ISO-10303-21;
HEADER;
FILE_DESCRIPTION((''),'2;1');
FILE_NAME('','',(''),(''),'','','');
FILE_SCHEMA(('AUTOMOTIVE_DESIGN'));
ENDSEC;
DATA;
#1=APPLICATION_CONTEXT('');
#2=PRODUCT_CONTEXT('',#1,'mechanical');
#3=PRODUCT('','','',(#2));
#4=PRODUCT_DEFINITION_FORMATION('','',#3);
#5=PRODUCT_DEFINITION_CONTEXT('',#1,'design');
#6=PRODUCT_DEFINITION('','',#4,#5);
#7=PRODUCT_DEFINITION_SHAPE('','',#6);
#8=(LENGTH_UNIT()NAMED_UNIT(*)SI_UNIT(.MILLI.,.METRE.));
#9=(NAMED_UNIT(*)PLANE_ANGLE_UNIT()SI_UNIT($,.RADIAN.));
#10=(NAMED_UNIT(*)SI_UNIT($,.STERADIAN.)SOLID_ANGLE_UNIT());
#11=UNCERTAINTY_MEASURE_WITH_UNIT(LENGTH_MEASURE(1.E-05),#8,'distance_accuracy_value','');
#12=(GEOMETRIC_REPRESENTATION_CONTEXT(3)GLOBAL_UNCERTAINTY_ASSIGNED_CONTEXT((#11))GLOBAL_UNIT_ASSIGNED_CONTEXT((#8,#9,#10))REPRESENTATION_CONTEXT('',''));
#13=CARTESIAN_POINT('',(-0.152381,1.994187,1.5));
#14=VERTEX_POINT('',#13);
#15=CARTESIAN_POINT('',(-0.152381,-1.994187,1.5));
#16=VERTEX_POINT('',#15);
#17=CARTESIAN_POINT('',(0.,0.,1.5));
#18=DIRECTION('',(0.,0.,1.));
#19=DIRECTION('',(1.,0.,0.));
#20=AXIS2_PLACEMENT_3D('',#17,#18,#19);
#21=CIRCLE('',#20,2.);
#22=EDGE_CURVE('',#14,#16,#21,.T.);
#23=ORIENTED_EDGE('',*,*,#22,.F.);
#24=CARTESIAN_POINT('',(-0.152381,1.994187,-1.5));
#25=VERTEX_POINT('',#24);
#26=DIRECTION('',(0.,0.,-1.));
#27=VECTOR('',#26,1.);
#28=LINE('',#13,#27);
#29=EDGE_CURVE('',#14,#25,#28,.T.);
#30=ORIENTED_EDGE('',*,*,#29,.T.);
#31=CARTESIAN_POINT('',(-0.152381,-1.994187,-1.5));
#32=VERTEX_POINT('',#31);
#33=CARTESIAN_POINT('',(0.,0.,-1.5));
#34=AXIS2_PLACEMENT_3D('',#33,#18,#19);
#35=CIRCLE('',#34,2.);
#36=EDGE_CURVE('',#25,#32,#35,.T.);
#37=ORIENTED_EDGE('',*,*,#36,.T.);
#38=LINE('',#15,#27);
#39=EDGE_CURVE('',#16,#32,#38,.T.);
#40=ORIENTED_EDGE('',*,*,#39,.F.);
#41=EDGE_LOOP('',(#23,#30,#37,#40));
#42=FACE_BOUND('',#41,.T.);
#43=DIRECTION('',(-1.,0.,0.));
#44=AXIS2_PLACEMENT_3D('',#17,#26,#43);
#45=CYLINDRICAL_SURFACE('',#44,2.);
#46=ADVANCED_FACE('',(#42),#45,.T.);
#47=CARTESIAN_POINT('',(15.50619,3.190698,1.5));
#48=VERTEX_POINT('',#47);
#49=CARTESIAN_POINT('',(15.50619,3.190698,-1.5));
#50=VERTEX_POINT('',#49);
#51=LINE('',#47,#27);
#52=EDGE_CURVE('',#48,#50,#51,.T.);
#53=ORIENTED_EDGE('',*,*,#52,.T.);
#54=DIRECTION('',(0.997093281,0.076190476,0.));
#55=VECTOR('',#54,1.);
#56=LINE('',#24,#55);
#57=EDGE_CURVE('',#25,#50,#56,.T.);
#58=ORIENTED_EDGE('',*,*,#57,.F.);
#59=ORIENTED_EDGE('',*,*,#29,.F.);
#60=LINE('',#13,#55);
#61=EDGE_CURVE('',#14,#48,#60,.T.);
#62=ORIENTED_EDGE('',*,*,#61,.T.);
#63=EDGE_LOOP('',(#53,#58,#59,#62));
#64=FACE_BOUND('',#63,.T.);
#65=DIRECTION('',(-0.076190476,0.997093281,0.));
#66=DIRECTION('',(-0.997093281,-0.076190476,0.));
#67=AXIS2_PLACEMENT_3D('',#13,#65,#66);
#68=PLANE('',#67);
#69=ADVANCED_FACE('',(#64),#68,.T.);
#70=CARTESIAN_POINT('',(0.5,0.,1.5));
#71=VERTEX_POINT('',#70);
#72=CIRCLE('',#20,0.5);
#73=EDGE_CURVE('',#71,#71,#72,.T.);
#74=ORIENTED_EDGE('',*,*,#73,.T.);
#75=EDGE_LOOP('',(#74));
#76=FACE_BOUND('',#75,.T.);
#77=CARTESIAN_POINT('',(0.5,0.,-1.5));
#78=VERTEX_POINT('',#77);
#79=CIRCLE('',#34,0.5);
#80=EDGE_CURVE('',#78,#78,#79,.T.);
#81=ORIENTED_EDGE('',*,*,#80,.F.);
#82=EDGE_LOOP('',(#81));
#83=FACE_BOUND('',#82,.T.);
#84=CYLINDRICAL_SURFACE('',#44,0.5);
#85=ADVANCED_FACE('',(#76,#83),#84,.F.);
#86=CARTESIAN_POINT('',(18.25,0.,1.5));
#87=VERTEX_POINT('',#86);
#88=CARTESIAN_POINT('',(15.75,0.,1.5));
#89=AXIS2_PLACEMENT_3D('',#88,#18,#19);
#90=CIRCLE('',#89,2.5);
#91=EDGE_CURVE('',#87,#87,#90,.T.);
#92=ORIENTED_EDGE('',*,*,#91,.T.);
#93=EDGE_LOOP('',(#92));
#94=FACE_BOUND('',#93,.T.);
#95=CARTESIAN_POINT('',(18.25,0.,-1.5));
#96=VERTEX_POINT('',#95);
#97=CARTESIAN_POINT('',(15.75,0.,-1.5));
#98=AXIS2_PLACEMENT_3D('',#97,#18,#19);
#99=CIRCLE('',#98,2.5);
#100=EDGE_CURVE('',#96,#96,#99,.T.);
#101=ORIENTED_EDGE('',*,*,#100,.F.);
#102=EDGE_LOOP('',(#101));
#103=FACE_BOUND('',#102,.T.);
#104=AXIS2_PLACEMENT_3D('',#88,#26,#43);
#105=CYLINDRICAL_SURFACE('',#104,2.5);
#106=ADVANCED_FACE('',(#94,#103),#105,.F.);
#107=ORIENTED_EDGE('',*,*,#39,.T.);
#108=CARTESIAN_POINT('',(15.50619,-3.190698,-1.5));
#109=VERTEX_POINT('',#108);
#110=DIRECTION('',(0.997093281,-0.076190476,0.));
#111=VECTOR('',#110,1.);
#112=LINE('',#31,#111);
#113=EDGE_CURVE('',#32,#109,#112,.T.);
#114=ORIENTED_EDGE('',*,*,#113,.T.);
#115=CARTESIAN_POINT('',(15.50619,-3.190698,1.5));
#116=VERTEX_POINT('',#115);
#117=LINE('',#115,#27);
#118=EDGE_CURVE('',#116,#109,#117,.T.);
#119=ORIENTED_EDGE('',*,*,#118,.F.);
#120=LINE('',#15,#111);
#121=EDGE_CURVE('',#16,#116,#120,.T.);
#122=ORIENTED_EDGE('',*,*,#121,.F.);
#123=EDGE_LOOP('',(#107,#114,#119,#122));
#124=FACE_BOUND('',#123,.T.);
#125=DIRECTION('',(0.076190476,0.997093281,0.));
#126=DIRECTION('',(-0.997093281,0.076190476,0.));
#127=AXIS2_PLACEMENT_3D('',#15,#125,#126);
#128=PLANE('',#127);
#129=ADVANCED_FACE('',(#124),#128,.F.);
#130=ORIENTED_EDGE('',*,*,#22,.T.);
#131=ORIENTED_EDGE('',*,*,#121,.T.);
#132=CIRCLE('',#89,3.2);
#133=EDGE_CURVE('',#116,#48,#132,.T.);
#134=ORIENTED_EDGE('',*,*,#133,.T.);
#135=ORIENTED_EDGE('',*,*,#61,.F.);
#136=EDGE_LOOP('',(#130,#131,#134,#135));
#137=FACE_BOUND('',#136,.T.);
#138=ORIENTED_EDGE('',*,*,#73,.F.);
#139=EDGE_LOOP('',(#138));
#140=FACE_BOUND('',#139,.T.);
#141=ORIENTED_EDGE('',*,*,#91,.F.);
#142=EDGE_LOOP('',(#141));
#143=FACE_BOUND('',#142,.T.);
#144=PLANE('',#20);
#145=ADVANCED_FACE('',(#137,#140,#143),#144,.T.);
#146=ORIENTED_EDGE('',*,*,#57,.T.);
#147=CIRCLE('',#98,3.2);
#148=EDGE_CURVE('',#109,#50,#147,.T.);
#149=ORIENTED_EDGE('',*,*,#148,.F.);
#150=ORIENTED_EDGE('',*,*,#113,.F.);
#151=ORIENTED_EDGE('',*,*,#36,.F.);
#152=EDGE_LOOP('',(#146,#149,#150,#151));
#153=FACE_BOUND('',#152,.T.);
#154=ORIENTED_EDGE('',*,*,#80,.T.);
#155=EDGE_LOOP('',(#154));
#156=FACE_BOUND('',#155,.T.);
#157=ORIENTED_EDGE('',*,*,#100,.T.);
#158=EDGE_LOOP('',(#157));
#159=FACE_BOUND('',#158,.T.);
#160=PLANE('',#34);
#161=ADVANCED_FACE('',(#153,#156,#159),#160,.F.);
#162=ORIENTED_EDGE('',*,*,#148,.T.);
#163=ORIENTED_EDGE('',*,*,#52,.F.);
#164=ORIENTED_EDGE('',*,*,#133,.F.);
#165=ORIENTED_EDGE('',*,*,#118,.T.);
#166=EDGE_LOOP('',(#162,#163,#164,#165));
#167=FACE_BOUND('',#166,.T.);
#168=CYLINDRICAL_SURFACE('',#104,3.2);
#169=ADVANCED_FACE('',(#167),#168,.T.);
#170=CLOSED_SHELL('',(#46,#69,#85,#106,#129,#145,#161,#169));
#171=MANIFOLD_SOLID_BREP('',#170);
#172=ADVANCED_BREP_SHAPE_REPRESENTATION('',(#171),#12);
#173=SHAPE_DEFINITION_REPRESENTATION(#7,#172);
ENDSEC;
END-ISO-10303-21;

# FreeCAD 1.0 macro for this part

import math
import FreeCAD as App
import Part
import Sketcher

doc = App.newDocument("Part")
params = doc.addObject("Spreadsheet::Sheet", "Params")
for row, (alias, value) in enumerate([
    ("sketch1_diameter", "1 mm"),
    ("sketch1_diameter2", "5 mm"),
    ("sketch1_radius", "2 mm"),
    ("sketch1_radius2", "3.2 mm"),
    ("pad1_length", "3 mm"),
], start=1):
    params.set(f"A{row}", alias)
    params.set(f"B{row}", "=" + value)
    params.setAlias(f"B{row}", alias)

body = doc.addObject("PartDesign::Body", "Body")

sketch1 = doc.addObject("Sketcher::SketchObject", "Sketch")
body.addObject(sketch1)
sketch1.AttachmentSupport = (doc.XY_Plane, [""])
sketch1.MapMode = "FlatFace"
sketch1.addGeometry(Part.ArcOfCircle(Part.Circle(App.Vector(0, 0, 0), App.Vector(0, 0, 1), 2), math.radians(94), math.radians(266)), False)
sketch1.addGeometry(Part.LineSegment(App.Vector(-0.2, -2, 0), App.Vector(15.5, -3.2, 0)), False)
sketch1.addGeometry(Part.ArcOfCircle(Part.Circle(App.Vector(15.8, 0, 0), App.Vector(0, 0, 1), 3.2), math.radians(-94), math.radians(94)), False)
sketch1.addGeometry(Part.LineSegment(App.Vector(15.5, 3.2, 0), App.Vector(-0.2, 2, 0)), False)
sketch1.addGeometry(Part.Circle(App.Vector(0, 0, 0), App.Vector(0, 0, 1), 0.5), False)
sketch1.addGeometry(Part.Circle(App.Vector(15.8, 0, 0), App.Vector(0, 0, 1), 2.5), False)
sketch1.addConstraint(Sketcher.Constraint("Tangent", 0, 2, 1, 1))
sketch1.addConstraint(Sketcher.Constraint("Tangent", 1, 2, 2, 1))
sketch1.addConstraint(Sketcher.Constraint("Tangent", 2, 2, 3, 1))
sketch1.addConstraint(Sketcher.Constraint("Tangent", 3, 2, 0, 1))
sketch1.addConstraint(Sketcher.Constraint("Coincident", 0, 3, -1, 1))
sketch1.addConstraint(Sketcher.Constraint("Coincident", 4, 3, -1, 1))
sketch1.addConstraint(Sketcher.Constraint("Coincident", 5, 3, 2, 3))
sketch1.addConstraint(Sketcher.Constraint("PointOnObject", 2, 3, -1))
sketch1.addConstraint(Sketcher.Constraint("Diameter", 4, 1.0))
sketch1.addConstraint(Sketcher.Constraint("Diameter", 5, 5.0))
sketch1.addConstraint(Sketcher.Constraint("Radius", 0, 2.0))
sketch1.addConstraint(Sketcher.Constraint("Radius", 2, 3.2))
sketch1.addConstraint(Sketcher.Constraint("DistanceX", -1, 1, 2, 3, 15.75))
sketch1.setExpression("Constraints[8]", "Params.sketch1_diameter")
sketch1.setExpression("Constraints[9]", "Params.sketch1_diameter2")
sketch1.setExpression("Constraints[10]", "Params.sketch1_radius")
sketch1.setExpression("Constraints[11]", "Params.sketch1_radius2")
pad1 = doc.addObject("PartDesign::Pad", "Pad")
body.addObject(pad1)
pad1.Profile = sketch1
pad1.setExpression("Length", "Params.pad1_length")
pad1.Midplane = True

doc.recompute()
